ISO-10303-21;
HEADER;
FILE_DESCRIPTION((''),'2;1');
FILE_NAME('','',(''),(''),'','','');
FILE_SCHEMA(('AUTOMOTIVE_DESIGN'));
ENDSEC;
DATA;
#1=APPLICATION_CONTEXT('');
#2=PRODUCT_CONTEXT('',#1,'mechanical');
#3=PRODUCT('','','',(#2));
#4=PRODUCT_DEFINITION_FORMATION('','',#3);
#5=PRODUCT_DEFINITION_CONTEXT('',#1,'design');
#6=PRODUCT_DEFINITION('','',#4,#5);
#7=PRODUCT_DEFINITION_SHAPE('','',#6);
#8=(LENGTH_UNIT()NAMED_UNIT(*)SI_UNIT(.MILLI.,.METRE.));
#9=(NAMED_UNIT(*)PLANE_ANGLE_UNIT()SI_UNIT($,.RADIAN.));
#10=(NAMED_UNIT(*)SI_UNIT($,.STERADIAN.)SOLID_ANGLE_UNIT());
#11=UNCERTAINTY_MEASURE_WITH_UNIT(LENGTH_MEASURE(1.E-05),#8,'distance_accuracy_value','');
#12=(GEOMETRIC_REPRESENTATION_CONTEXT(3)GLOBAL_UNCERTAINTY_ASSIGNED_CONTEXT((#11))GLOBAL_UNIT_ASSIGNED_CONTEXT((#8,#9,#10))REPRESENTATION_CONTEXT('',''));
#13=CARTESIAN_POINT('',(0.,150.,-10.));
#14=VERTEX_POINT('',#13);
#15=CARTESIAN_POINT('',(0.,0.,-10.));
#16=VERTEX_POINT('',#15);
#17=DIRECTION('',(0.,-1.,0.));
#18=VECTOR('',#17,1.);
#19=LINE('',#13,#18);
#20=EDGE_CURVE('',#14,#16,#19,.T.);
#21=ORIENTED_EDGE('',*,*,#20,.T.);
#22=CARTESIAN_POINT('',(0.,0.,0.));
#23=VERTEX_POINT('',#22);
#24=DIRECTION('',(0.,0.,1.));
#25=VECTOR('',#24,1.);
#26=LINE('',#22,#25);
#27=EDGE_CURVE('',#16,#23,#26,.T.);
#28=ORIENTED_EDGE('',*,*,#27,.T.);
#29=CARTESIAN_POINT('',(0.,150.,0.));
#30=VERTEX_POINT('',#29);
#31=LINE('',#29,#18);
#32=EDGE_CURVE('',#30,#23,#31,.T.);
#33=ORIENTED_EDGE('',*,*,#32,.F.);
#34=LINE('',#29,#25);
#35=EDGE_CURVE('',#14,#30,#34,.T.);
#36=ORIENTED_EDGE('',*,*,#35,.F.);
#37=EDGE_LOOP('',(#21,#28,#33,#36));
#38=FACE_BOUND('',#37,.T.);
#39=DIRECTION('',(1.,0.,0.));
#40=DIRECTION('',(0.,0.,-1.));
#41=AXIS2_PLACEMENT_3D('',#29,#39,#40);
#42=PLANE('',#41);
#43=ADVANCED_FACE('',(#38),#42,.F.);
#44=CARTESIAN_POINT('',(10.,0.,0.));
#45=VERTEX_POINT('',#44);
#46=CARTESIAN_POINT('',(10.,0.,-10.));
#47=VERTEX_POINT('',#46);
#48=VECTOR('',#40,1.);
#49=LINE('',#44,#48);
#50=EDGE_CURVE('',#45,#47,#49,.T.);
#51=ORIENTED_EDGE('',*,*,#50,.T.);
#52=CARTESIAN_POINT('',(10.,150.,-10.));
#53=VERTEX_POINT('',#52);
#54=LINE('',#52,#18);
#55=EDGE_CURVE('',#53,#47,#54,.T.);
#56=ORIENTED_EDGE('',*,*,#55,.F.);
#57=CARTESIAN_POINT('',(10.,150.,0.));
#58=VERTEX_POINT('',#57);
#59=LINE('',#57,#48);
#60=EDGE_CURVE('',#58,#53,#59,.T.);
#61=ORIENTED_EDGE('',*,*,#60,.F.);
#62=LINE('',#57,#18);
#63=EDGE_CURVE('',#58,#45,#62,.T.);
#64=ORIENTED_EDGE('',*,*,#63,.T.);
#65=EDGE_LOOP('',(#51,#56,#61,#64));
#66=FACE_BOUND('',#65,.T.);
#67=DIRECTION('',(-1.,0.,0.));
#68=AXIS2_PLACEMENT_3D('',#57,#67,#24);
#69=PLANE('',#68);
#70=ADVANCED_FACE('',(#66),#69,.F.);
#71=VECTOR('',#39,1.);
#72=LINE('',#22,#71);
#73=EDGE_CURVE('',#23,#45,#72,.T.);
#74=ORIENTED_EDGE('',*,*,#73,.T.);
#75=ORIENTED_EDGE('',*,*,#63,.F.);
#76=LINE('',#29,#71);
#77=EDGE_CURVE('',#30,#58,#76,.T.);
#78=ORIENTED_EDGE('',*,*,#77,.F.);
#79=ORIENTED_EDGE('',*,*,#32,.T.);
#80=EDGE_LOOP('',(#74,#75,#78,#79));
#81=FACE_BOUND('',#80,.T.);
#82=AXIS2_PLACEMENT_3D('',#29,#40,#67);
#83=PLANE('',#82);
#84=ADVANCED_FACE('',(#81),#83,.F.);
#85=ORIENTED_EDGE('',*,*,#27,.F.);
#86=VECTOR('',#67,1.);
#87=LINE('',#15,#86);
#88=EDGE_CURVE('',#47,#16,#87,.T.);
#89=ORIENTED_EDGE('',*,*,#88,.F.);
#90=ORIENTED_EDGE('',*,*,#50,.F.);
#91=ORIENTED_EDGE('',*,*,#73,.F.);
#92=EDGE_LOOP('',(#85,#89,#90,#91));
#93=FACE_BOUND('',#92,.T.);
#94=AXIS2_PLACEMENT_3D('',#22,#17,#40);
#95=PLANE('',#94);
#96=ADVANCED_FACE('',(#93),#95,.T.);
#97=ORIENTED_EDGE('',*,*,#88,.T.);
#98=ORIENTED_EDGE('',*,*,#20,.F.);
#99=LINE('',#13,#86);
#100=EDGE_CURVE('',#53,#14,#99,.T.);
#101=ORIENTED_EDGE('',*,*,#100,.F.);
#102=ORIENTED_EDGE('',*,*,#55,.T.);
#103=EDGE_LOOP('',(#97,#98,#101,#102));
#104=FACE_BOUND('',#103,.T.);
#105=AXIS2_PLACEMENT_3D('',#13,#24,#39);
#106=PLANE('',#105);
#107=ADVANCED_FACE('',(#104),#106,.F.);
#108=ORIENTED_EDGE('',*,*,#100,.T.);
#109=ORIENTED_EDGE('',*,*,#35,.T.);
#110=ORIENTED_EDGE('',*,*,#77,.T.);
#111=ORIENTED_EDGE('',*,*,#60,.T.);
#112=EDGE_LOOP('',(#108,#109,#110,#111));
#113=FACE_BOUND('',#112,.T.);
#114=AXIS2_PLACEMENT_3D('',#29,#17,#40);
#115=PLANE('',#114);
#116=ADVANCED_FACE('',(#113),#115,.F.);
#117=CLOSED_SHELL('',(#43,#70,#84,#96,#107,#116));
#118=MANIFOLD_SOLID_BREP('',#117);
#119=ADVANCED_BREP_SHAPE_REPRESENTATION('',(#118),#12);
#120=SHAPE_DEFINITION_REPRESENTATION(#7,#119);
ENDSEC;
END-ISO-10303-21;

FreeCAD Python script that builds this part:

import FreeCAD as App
import Part
import Sketcher

V = App.Vector
Q = App.Units.Quantity


def add_polygon(sketch, points):
    """Adds a closed chain of lines whose ends are joined by coincident constraints."""
    first, n = sketch.GeometryCount, len(points)
    for a, b in zip(points, points[1:] + points[:1]):
        sketch.addGeometry(Part.LineSegment(App.Vector(*a, 0), App.Vector(*b, 0)), False)
    for i in range(n):
        sketch.addConstraint(Sketcher.Constraint("Coincident", first + i, 2, first + (i + 1) % n, 1))

doc = App.newDocument("Part")
body = doc.addObject("PartDesign::Body", "Body")

# Sketch on XZ plane
sketch1 = doc.addObject("Sketcher::SketchObject", "Sketch")
body.addObject(sketch1)
sketch1.AttachmentSupport = (doc.XZ_Plane, [""])
sketch1.MapMode = "FlatFace"
add_polygon(sketch1, [(0, -10), (0, 0), (10, 0), (10, -10)])  # lines 0-3
sketch1.addConstraint(Sketcher.Constraint("Vertical", 0))
sketch1.addConstraint(Sketcher.Constraint("Horizontal", 1))
sketch1.addConstraint(Sketcher.Constraint("Vertical", 2))
sketch1.addConstraint(Sketcher.Constraint("Horizontal", 3))
sketch1.addConstraint(Sketcher.Constraint("Coincident", 0, 2, -1, 1))
sketch1.addConstraint(Sketcher.Constraint("Equal", 3, 0))
sketch1.addConstraint(Sketcher.Constraint("DistanceX", 1, 1, 1, 2, Q("10 mm")))
pad1 = doc.addObject("PartDesign::Pad", "Pad")
body.addObject(pad1)
pad1.Profile = sketch1
pad1.Length = 150
pad1.Reversed = True

doc.recompute()
